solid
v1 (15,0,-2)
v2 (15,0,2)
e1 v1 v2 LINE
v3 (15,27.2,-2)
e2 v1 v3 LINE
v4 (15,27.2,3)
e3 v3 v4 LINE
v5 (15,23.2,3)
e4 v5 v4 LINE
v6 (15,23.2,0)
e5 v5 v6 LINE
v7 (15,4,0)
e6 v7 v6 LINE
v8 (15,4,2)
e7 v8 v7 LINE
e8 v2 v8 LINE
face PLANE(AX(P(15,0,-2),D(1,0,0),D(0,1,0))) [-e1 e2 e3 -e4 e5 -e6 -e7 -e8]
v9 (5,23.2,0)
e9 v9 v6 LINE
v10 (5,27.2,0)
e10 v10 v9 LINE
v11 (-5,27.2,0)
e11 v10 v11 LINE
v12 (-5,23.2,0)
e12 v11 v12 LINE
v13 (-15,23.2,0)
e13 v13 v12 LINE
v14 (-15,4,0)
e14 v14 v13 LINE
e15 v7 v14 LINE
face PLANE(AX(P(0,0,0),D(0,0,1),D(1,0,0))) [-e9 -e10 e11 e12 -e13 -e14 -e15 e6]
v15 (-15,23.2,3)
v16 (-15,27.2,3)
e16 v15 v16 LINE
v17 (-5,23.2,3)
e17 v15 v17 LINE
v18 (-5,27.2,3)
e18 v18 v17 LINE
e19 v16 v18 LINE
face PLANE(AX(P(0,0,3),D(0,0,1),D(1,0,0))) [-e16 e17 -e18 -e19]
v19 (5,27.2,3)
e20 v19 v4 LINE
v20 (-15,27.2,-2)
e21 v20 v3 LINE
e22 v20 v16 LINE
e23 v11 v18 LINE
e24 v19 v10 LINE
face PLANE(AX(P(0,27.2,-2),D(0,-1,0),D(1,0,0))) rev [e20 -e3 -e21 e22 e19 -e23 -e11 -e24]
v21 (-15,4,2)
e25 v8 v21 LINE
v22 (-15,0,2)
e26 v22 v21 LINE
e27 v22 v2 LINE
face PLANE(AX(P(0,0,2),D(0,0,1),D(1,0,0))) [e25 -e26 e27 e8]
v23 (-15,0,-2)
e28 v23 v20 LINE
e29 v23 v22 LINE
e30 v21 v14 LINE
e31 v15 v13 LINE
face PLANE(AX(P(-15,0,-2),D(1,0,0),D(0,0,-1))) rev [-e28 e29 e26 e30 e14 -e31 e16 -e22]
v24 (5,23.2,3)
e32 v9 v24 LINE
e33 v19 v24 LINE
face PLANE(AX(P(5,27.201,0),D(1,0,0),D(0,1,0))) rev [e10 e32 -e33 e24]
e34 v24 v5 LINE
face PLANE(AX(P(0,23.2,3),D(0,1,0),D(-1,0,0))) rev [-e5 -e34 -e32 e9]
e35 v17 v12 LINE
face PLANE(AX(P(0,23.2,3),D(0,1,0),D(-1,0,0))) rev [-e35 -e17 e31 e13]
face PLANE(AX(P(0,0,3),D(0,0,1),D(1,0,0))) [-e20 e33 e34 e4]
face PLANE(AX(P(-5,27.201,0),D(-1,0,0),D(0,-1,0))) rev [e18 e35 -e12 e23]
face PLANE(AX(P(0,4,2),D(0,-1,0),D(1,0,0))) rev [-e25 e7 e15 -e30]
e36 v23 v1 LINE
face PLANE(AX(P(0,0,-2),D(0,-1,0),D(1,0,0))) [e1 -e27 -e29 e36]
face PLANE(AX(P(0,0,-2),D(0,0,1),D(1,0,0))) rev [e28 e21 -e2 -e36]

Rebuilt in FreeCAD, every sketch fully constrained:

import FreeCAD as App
import Part
import Sketcher
from FreeCAD import Vector

doc = App.newDocument("Part")
body = doc.addObject("PartDesign::Body", "Body")

# Sketch on XY plane
sketch1 = body.newObject("Sketcher::SketchObject", "Sketch")
sketch1.AttachmentSupport = (doc.getObject("XY_Plane"), [""])
sketch1.MapMode = "FlatFace"
sketch1.addGeometry([
    Part.LineSegment(Vector(-15, 27.2, 0), Vector(-15, 0, 0)),
    Part.LineSegment(Vector(-15, 0, 0), Vector(15, 0, 0)),
    Part.LineSegment(Vector(15, 0, 0), Vector(15, 27.2, 0)),
    Part.LineSegment(Vector(15, 27.2, 0), Vector(-15, 27.2, 0)),
], False)
sketch1.addConstraint([
    Sketcher.Constraint("Coincident", 0, 2, 1, 1),
    Sketcher.Constraint("Coincident", 1, 2, 2, 1),
    Sketcher.Constraint("Coincident", 2, 2, 3, 1),
    Sketcher.Constraint("Coincident", 3, 2, 0, 1),
    Sketcher.Constraint("Vertical", 0),
    Sketcher.Constraint("Horizontal", 1),
    Sketcher.Constraint("Vertical", 2),
    Sketcher.Constraint("Horizontal", 3),
    Sketcher.Constraint("Symmetric", 0, 2, 1, 2, -1, 1),
    Sketcher.Constraint("DistanceX", 1, 1, 1, 2, 30.0),
    Sketcher.Constraint("DistanceY", 0, 2, 0, 1, 27.2),
])
pad1 = body.newObject("PartDesign::Pad", "Pad")
pad1.Profile = sketch1
pad1.Length = 2
pad1.Reversed = True

# Sketch on XY plane
sketch2 = body.newObject("Sketcher::SketchObject", "Sketch001")
sketch2.AttachmentSupport = (doc.getObject("XY_Plane"), [""])
sketch2.MapMode = "FlatFace"
sketch2.addGeometry([
    Part.LineSegment(Vector(-15, 4, 0), Vector(-15, 0, 0)),
    Part.LineSegment(Vector(-15, 0, 0), Vector(15, 0, 0)),
    Part.LineSegment(Vector(15, 0, 0), Vector(15, 4, 0)),
    Part.LineSegment(Vector(15, 4, 0), Vector(-15, 4, 0)),
], False)
sketch2.addConstraint([
    Sketcher.Constraint("Coincident", 0, 2, 1, 1),
    Sketcher.Constraint("Coincident", 1, 2, 2, 1),
    Sketcher.Constraint("Coincident", 2, 2, 3, 1),
    Sketcher.Constraint("Coincident", 3, 2, 0, 1),
    Sketcher.Constraint("Vertical", 0),
    Sketcher.Constraint("Horizontal", 1),
    Sketcher.Constraint("Vertical", 2),
    Sketcher.Constraint("Horizontal", 3),
    Sketcher.Constraint("Symmetric", 0, 2, 1, 2, -1, 1),
    Sketcher.Constraint("DistanceX", 1, 1, 1, 2, 30.0),
    Sketcher.Constraint("DistanceY", 0, 2, 0, 1, 4.0),
])
pad2 = body.newObject("PartDesign::Pad", "Pad001")
pad2.Profile = sketch2
pad2.Length = 2

# Sketch on XY plane
sketch3 = body.newObject("Sketcher::SketchObject", "Sketch002")
sketch3.AttachmentSupport = (doc.getObject("XY_Plane"), [""])
sketch3.MapMode = "FlatFace"
sketch3.addGeometry([
    Part.LineSegment(Vector(-15, 27.2, 0), Vector(-15, 23.2, 0)),
    Part.LineSegment(Vector(-15, 23.2, 0), Vector(15, 23.2, 0)),
    Part.LineSegment(Vector(15, 23.2, 0), Vector(15, 27.2, 0)),
    Part.LineSegment(Vector(15, 27.2, 0), Vector(-15, 27.2, 0)),
], False)
sketch3.addConstraint([
    Sketcher.Constraint("Coincident", 0, 2, 1, 1),
    Sketcher.Constraint("Coincident", 1, 2, 2, 1),
    Sketcher.Constraint("Coincident", 2, 2, 3, 1),
    Sketcher.Constraint("Coincident", 3, 2, 0, 1),
    Sketcher.Constraint("Vertical", 0),
    Sketcher.Constraint("Horizontal", 1),
    Sketcher.Constraint("Vertical", 2),
    Sketcher.Constraint("Horizontal", 3),
    Sketcher.Constraint("DistanceX", 1, 1, 1, 2, 30.0),
    Sketcher.Constraint("DistanceY", 0, 2, 0, 1, 4.0),
    Sketcher.Constraint("DistanceX", 0, 2, -1, 1, 15.0),
    Sketcher.Constraint("DistanceY", -1, 1, 0, 2, 23.2),
])
pad3 = body.newObject("PartDesign::Pad", "Pad002")
pad3.Profile = sketch3
pad3.Length = 3

# Sketch on XZ plane
sketch4 = body.newObject("Sketcher::SketchObject", "Sketch003")
sketch4.AttachmentSupport = (doc.getObject("XZ_Plane"), [""])
sketch4.MapMode = "FlatFace"
sketch4.AttachmentOffset = App.Placement(Vector(0, 0, -23.2), App.Rotation())
sketch4.addGeometry([
    Part.LineSegment(Vector(-5, 3, 0), Vector(-5, 0, 0)),
    Part.LineSegment(Vector(-5, 0, 0), Vector(5, 0, 0)),
    Part.LineSegment(Vector(5, 0, 0), Vector(5, 3, 0)),
    Part.LineSegment(Vector(5, 3, 0), Vector(-5, 3, 0)),
], False)
sketch4.addConstraint([
    Sketcher.Constraint("Coincident", 0, 2, 1, 1),
    Sketcher.Constraint("Coincident", 1, 2, 2, 1),
    Sketcher.Constraint("Coincident", 2, 2, 3, 1),
    Sketcher.Constraint("Coincident", 3, 2, 0, 1),
    Sketcher.Constraint("Vertical", 0),
    Sketcher.Constraint("Horizontal", 1),
    Sketcher.Constraint("Vertical", 2),
    Sketcher.Constraint("Horizontal", 3),
    Sketcher.Constraint("Symmetric", 0, 2, 1, 2, -1, 1),
    Sketcher.Constraint("DistanceX", 1, 1, 1, 2, 10.0),
    Sketcher.Constraint("DistanceY", 0, 2, 0, 1, 3.0),
])
pocket1 = body.newObject("PartDesign::Pocket", "Pocket")
pocket1.Profile = sketch4
pocket1.Type = "UpToFirst"

doc.recompute()
